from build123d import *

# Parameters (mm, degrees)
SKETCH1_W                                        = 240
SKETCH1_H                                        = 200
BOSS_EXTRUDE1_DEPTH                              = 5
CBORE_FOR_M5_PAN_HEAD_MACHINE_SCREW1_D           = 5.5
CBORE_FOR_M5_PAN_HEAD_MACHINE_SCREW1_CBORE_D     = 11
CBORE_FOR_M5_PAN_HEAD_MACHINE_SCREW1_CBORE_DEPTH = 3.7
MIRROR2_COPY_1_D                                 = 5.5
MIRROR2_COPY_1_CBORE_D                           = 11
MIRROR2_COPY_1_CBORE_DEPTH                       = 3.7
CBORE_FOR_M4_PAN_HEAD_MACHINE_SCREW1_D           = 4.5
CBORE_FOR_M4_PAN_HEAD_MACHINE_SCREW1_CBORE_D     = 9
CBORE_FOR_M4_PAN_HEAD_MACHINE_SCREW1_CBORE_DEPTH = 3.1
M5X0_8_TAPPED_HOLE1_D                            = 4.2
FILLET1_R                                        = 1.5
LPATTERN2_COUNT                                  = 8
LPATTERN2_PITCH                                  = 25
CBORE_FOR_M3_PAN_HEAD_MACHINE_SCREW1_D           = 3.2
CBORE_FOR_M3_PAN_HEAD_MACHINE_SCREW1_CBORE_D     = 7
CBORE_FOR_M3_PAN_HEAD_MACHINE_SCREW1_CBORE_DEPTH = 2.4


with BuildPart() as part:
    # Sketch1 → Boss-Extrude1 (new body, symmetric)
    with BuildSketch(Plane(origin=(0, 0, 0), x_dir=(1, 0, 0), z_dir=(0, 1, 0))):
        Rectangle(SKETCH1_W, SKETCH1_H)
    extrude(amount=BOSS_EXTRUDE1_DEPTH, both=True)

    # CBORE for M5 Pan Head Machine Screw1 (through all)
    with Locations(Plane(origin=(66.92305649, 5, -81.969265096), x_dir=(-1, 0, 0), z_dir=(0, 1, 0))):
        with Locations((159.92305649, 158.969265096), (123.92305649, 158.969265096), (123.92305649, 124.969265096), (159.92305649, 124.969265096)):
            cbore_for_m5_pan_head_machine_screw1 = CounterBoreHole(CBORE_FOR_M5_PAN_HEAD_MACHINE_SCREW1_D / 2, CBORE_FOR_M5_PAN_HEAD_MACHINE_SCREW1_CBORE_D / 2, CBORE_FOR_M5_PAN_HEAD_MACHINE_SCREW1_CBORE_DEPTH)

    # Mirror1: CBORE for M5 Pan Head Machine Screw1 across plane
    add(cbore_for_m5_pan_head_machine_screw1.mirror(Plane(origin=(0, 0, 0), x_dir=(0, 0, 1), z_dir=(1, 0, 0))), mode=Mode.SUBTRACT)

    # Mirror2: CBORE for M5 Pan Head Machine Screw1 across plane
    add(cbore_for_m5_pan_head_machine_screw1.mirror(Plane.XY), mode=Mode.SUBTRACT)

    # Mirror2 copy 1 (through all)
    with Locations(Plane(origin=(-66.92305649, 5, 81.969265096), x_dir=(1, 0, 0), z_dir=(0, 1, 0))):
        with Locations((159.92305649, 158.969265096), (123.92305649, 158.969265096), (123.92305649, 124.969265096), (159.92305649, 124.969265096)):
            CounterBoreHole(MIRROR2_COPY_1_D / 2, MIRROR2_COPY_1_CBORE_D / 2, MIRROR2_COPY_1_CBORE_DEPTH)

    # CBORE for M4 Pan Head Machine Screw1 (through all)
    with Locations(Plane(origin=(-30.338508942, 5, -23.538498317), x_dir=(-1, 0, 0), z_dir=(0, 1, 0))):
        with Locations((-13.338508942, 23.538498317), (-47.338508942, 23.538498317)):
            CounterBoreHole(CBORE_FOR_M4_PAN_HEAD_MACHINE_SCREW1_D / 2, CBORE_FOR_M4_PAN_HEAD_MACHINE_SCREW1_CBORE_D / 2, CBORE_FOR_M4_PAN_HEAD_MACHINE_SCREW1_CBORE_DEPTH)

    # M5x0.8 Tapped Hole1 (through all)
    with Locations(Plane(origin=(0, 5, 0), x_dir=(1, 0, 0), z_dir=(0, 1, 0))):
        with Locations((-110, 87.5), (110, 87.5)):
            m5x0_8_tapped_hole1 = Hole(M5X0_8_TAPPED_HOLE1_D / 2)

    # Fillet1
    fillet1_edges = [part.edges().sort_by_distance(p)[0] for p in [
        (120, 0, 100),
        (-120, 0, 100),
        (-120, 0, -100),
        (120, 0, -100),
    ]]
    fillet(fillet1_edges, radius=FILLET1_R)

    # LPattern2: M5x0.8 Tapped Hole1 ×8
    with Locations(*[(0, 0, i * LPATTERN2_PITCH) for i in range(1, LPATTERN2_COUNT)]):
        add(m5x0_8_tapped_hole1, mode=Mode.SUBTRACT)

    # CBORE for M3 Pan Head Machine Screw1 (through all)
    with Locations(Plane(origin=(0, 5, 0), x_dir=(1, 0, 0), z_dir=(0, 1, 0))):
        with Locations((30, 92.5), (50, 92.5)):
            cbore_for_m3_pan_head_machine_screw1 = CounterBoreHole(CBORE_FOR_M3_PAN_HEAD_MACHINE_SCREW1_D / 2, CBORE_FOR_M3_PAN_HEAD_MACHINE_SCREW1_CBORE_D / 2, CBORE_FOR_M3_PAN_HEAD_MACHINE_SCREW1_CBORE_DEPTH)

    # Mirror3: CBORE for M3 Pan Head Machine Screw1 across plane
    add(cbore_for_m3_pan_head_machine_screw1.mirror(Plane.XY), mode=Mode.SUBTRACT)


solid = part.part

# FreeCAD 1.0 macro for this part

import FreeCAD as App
import Part
import Sketcher
Q = App.Units.Quantity


def edges_at(feature, points):
    """Names of the edges that pass closest to the given points."""
    edges = feature.Shape.Edges
    near = lambda p: min(range(len(edges)), key=lambda i: edges[i].distToShape(Part.Vertex(*p))[0])
    return sorted({f"Edge{near(p) + 1}" for p in points})

doc = App.newDocument("Part")
params = doc.addObject("Spreadsheet::Sheet", "Params")
for row, (alias, value) in enumerate([
    ("sketch1_width", "240 mm"),
    ("sketch1_height", "200 mm"),
    ("pad1_length", "10 mm"),
    ("sketch2_diameter", "5.5 mm"),
    ("hole_diameter", "5.5 mm"),
    ("hole_cbore_diameter", "11 mm"),
    ("hole_cbore_depth", "3.7 mm"),
    ("sketch3_diameter", "5.5 mm"),
    ("hole2_diameter", "5.5 mm"),
    ("hole2_cbore_diameter", "11 mm"),
    ("hole2_cbore_depth", "3.7 mm"),
    ("sketch4_diameter", "4.5 mm"),
    ("hole3_diameter", "4.5 mm"),
    ("hole3_cbore_diameter", "9 mm"),
    ("hole3_cbore_depth", "3.1 mm"),
    ("sketch5_diameter", "4.2 mm"),
    ("hole4_diameter", "4.2 mm"),
    ("fillet_radius", "1.5 mm"),
    ("linearpattern_pitch", "25 mm"),
    ("sketch6_diameter", "3.2 mm"),
    ("hole5_diameter", "3.2 mm"),
    ("hole5_cbore_diameter", "7 mm"),
    ("hole5_cbore_depth", "2.4 mm"),
], start=1):
    params.set(f"A{row}", alias)
    params.set(f"B{row}", "=" + value)
    params.setAlias(f"B{row}", alias)

body = doc.addObject("PartDesign::Body", "Body")

# Sketch on XZ plane
sketch1 = doc.addObject("Sketcher::SketchObject", "Sketch")
body.addObject(sketch1)
sketch1.AttachmentSupport = (doc.XZ_Plane, [""])
sketch1.MapMode = "FlatFace"
sketch1.addGeometry([
    Part.LineSegment(App.Vector(-120, -100, 0), App.Vector(-120, 100, 0)),
    Part.LineSegment(App.Vector(-120, 100, 0), App.Vector(120, 100, 0)),
    Part.LineSegment(App.Vector(120, 100, 0), App.Vector(120, -100, 0)),
    Part.LineSegment(App.Vector(120, -100, 0), App.Vector(-120, -100, 0)),
], False)
sketch1.addConstraint([
    Sketcher.Constraint("Coincident", 0, 2, 1, 1),
    Sketcher.Constraint("Coincident", 1, 2, 2, 1),
    Sketcher.Constraint("Coincident", 2, 2, 3, 1),
    Sketcher.Constraint("Coincident", 3, 2, 0, 1),
    Sketcher.Constraint("Vertical", 0),
    Sketcher.Constraint("Horizontal", 1),
    Sketcher.Constraint("Vertical", 2),
    Sketcher.Constraint("Horizontal", 3),
    Sketcher.Constraint("Symmetric", 0, 2, 2, 2, -1, 1),
    Sketcher.Constraint("DistanceX", 1, 1, 1, 2, Q("240 mm")),
    Sketcher.Constraint("DistanceY", 0, 1, 0, 2, Q("200 mm")),
])
sketch1.setExpression("Constraints[9]", "Params.sketch1_width")
sketch1.setExpression("Constraints[10]", "Params.sketch1_height")
pad1 = doc.addObject("PartDesign::Pad", "Pad")
body.addObject(pad1)
pad1.Profile = sketch1
pad1.setExpression("Length", "Params.pad1_length")
pad1.Midplane = True

# Sketch on XZ plane
sketch2 = doc.addObject("Sketcher::SketchObject", "Sketch001")
body.addObject(sketch2)
sketch2.AttachmentSupport = (doc.XZ_Plane, [""])
sketch2.MapMode = "FlatFace"
sketch2.AttachmentOffset = App.Placement(App.Vector(0, 0, -5), App.Rotation())
sketch2.addGeometry([
    Part.Circle(App.Vector(-93, 77, 0), App.Vector(0, 0, 1), 2.8),
    Part.Circle(App.Vector(-57, 77, 0), App.Vector(0, 0, 1), 2.8),
    Part.Circle(App.Vector(-57, 43, 0), App.Vector(0, 0, 1), 2.8),
    Part.Circle(App.Vector(-93, 43, 0), App.Vector(0, 0, 1), 2.8),
], False)
sketch2.addConstraint([
    Sketcher.Constraint("Equal", 0, 1),
    Sketcher.Constraint("Equal", 1, 2),
    Sketcher.Constraint("Equal", 2, 3),
    Sketcher.Constraint("Horizontal", 0, 3, 1, 3),
    Sketcher.Constraint("Horizontal", 2, 3, 3, 3),
    Sketcher.Constraint("Vertical", 1, 3, 2, 3),
    Sketcher.Constraint("Vertical", 0, 3, 3, 3),
    Sketcher.Constraint("Diameter", 0, Q("5.5 mm")),
    Sketcher.Constraint("DistanceX", 0, 3, -1, 1, Q("93 mm")),
    Sketcher.Constraint("DistanceY", -1, 1, 0, 3, Q("77 mm")),
    Sketcher.Constraint("DistanceX", 1, 3, -1, 1, Q("57 mm")),
    Sketcher.Constraint("DistanceY", -1, 1, 2, 3, Q("43 mm")),
])
sketch2.setExpression("Constraints[7]", "Params.sketch2_diameter")
doc.recompute()
hole = doc.addObject("PartDesign::Hole", "Hole")
body.addObject(hole)
hole.Profile = sketch2
hole.ThreadType = "None"
hole.setExpression("Diameter", "Params.hole_diameter")
hole.DepthType = "ThroughAll"
hole.HoleCutType = "Counterbore"
hole.setExpression("HoleCutDiameter", "Params.hole_cbore_diameter")
hole.setExpression("HoleCutDepth", "Params.hole_cbore_depth")
hole.Reversed = True
doc.recompute()

mirrored = doc.addObject("PartDesign::Mirrored", "Mirrored")
body.addObject(mirrored)
mirrored.Originals = [hole]
mirrored.MirrorPlane = (doc.YZ_Plane, [""])
body.Tip = mirrored
doc.recompute()

mirrored2 = doc.addObject("PartDesign::Mirrored", "Mirrored001")
body.addObject(mirrored2)
mirrored2.Originals = [hole]
mirrored2.MirrorPlane = (doc.XY_Plane, [""])
body.Tip = mirrored2

# Sketch on XZ plane
sketch3 = doc.addObject("Sketcher::SketchObject", "Sketch002")
body.addObject(sketch3)
sketch3.AttachmentSupport = (doc.XZ_Plane, [""])
sketch3.MapMode = "FlatFace"
sketch3.AttachmentOffset = App.Placement(App.Vector(0, 0, -5), App.Rotation())
sketch3.addGeometry([
    Part.Circle(App.Vector(93, -77, 0), App.Vector(0, 0, 1), 2.8),
    Part.Circle(App.Vector(57, -77, 0), App.Vector(0, 0, 1), 2.8),
    Part.Circle(App.Vector(57, -43, 0), App.Vector(0, 0, 1), 2.8),
    Part.Circle(App.Vector(93, -43, 0), App.Vector(0, 0, 1), 2.8),
], False)
sketch3.addConstraint([
    Sketcher.Constraint("Equal", 0, 1),
    Sketcher.Constraint("Equal", 1, 2),
    Sketcher.Constraint("Equal", 2, 3),
    Sketcher.Constraint("Horizontal", 0, 3, 1, 3),
    Sketcher.Constraint("Horizontal", 2, 3, 3, 3),
    Sketcher.Constraint("Vertical", 1, 3, 2, 3),
    Sketcher.Constraint("Vertical", 0, 3, 3, 3),
    Sketcher.Constraint("Diameter", 0, Q("5.5 mm")),
    Sketcher.Constraint("DistanceX", -1, 1, 0, 3, Q("93 mm")),
    Sketcher.Constraint("DistanceY", 0, 3, -1, 1, Q("77 mm")),
    Sketcher.Constraint("DistanceX", -1, 1, 1, 3, Q("57 mm")),
    Sketcher.Constraint("DistanceY", 2, 3, -1, 1, Q("43 mm")),
])
sketch3.setExpression("Constraints[7]", "Params.sketch3_diameter")
doc.recompute()
hole2 = doc.addObject("PartDesign::Hole", "Hole001")
body.addObject(hole2)
hole2.Profile = sketch3
hole2.ThreadType = "None"
hole2.setExpression("Diameter", "Params.hole2_diameter")
hole2.DepthType = "ThroughAll"
hole2.HoleCutType = "Counterbore"
hole2.setExpression("HoleCutDiameter", "Params.hole2_cbore_diameter")
hole2.setExpression("HoleCutDepth", "Params.hole2_cbore_depth")
hole2.Reversed = True

# Sketch on XZ plane
sketch4 = doc.addObject("Sketcher::SketchObject", "Sketch003")
body.addObject(sketch4)
sketch4.AttachmentSupport = (doc.XZ_Plane, [""])
sketch4.MapMode = "FlatFace"
sketch4.AttachmentOffset = App.Placement(App.Vector(0, 0, -5), App.Rotation())
sketch4.addGeometry([
    Part.Circle(App.Vector(-17, 0, 0), App.Vector(0, 0, 1), 2.2),
    Part.Circle(App.Vector(17, 0, 0), App.Vector(0, 0, 1), 2.2),
], False)
sketch4.addConstraint([
    Sketcher.Constraint("Equal", 0, 1),
    Sketcher.Constraint("Symmetric", 0, 3, 1, 3, -1, 1),
    Sketcher.Constraint("PointOnObject", 0, 3, -1),
    Sketcher.Constraint("Diameter", 0, Q("4.5 mm")),
    Sketcher.Constraint("DistanceX", 0, 3, -1, 1, Q("17 mm")),
])
sketch4.setExpression("Constraints[3]", "Params.sketch4_diameter")
doc.recompute()
hole3 = doc.addObject("PartDesign::Hole", "Hole002")
body.addObject(hole3)
hole3.Profile = sketch4
hole3.ThreadType = "None"
hole3.setExpression("Diameter", "Params.hole3_diameter")
hole3.DepthType = "ThroughAll"
hole3.HoleCutType = "Counterbore"
hole3.setExpression("HoleCutDiameter", "Params.hole3_cbore_diameter")
hole3.setExpression("HoleCutDepth", "Params.hole3_cbore_depth")
hole3.Reversed = True

# Sketch on XZ plane
sketch5 = doc.addObject("Sketcher::SketchObject", "Sketch004")
body.addObject(sketch5)
sketch5.AttachmentSupport = (doc.XZ_Plane, [""])
sketch5.MapMode = "FlatFace"
sketch5.AttachmentOffset = App.Placement(App.Vector(0, 0, -5), App.Rotation())
sketch5.addGeometry([
    Part.Circle(App.Vector(-110, -87.5, 0), App.Vector(0, 0, 1), 2.1),
    Part.Circle(App.Vector(110, -87.5, 0), App.Vector(0, 0, 1), 2.1),
], False)
sketch5.addConstraint([
    Sketcher.Constraint("Equal", 0, 1),
    Sketcher.Constraint("Symmetric", 0, 3, 1, 3, -2),
    Sketcher.Constraint("Diameter", 0, Q("4.2 mm")),
    Sketcher.Constraint("DistanceX", 0, 3, -1, 1, Q("110 mm")),
    Sketcher.Constraint("DistanceY", 0, 3, -1, 1, Q("87.5 mm")),
])
sketch5.setExpression("Constraints[2]", "Params.sketch5_diameter")
doc.recompute()
hole4 = doc.addObject("PartDesign::Hole", "Hole003")
body.addObject(hole4)
hole4.Profile = sketch5
hole4.ThreadType = "None"
hole4.setExpression("Diameter", "Params.hole4_diameter")
hole4.DepthType = "ThroughAll"
hole4.Reversed = True
doc.recompute()

fillet = doc.addObject("PartDesign::Fillet", "Fillet")
body.addObject(fillet)
fillet.Base = (hole4, edges_at(hole4, [
    (120, 0, 100),
    (-120, 0, 100),
    (-120, 0, -100),
    (120, 0, -100),
]))
fillet.setExpression("Radius", "Params.fillet_radius")
doc.recompute()

linearpattern = doc.addObject("PartDesign::LinearPattern", "LinearPattern")
body.addObject(linearpattern)
linearpattern.Originals = [hole4]
linearpattern.Direction = (doc.Z_Axis, [""])
linearpattern.Mode = "offset"
linearpattern.setExpression("Offset", "Params.linearpattern_pitch")
linearpattern.Occurrences = 8
body.Tip = linearpattern

# Sketch on XZ plane
sketch6 = doc.addObject("Sketcher::SketchObject", "Sketch005")
body.addObject(sketch6)
sketch6.AttachmentSupport = (doc.XZ_Plane, [""])
sketch6.MapMode = "FlatFace"
sketch6.AttachmentOffset = App.Placement(App.Vector(0, 0, -5), App.Rotation())
sketch6.addGeometry([
    Part.Circle(App.Vector(30, -92.5, 0), App.Vector(0, 0, 1), 1.6),
    Part.Circle(App.Vector(50, -92.5, 0), App.Vector(0, 0, 1), 1.6),
], False)
sketch6.addConstraint([
    Sketcher.Constraint("Equal", 0, 1),
    Sketcher.Constraint("Horizontal", 0, 3, 1, 3),
    Sketcher.Constraint("Diameter", 0, Q("3.2 mm")),
    Sketcher.Constraint("DistanceX", -1, 1, 0, 3, Q("30 mm")),
    Sketcher.Constraint("DistanceX", -1, 1, 1, 3, Q("50 mm")),
    Sketcher.Constraint("DistanceY", 0, 3, -1, 1, Q("92.5 mm")),
])
sketch6.setExpression("Constraints[2]", "Params.sketch6_diameter")
doc.recompute()
hole5 = doc.addObject("PartDesign::Hole", "Hole004")
body.addObject(hole5)
hole5.Profile = sketch6
hole5.ThreadType = "None"
hole5.setExpression("Diameter", "Params.hole5_diameter")
hole5.DepthType = "ThroughAll"
hole5.HoleCutType = "Counterbore"
hole5.setExpression("HoleCutDiameter", "Params.hole5_cbore_diameter")
hole5.setExpression("HoleCutDepth", "Params.hole5_cbore_depth")
hole5.Reversed = True
doc.recompute()

mirrored3 = doc.addObject("PartDesign::Mirrored", "Mirrored002")
body.addObject(mirrored3)
mirrored3.Originals = [hole5]
mirrored3.MirrorPlane = (doc.XY_Plane, [""])
body.Tip = mirrored3

doc.recompute()
